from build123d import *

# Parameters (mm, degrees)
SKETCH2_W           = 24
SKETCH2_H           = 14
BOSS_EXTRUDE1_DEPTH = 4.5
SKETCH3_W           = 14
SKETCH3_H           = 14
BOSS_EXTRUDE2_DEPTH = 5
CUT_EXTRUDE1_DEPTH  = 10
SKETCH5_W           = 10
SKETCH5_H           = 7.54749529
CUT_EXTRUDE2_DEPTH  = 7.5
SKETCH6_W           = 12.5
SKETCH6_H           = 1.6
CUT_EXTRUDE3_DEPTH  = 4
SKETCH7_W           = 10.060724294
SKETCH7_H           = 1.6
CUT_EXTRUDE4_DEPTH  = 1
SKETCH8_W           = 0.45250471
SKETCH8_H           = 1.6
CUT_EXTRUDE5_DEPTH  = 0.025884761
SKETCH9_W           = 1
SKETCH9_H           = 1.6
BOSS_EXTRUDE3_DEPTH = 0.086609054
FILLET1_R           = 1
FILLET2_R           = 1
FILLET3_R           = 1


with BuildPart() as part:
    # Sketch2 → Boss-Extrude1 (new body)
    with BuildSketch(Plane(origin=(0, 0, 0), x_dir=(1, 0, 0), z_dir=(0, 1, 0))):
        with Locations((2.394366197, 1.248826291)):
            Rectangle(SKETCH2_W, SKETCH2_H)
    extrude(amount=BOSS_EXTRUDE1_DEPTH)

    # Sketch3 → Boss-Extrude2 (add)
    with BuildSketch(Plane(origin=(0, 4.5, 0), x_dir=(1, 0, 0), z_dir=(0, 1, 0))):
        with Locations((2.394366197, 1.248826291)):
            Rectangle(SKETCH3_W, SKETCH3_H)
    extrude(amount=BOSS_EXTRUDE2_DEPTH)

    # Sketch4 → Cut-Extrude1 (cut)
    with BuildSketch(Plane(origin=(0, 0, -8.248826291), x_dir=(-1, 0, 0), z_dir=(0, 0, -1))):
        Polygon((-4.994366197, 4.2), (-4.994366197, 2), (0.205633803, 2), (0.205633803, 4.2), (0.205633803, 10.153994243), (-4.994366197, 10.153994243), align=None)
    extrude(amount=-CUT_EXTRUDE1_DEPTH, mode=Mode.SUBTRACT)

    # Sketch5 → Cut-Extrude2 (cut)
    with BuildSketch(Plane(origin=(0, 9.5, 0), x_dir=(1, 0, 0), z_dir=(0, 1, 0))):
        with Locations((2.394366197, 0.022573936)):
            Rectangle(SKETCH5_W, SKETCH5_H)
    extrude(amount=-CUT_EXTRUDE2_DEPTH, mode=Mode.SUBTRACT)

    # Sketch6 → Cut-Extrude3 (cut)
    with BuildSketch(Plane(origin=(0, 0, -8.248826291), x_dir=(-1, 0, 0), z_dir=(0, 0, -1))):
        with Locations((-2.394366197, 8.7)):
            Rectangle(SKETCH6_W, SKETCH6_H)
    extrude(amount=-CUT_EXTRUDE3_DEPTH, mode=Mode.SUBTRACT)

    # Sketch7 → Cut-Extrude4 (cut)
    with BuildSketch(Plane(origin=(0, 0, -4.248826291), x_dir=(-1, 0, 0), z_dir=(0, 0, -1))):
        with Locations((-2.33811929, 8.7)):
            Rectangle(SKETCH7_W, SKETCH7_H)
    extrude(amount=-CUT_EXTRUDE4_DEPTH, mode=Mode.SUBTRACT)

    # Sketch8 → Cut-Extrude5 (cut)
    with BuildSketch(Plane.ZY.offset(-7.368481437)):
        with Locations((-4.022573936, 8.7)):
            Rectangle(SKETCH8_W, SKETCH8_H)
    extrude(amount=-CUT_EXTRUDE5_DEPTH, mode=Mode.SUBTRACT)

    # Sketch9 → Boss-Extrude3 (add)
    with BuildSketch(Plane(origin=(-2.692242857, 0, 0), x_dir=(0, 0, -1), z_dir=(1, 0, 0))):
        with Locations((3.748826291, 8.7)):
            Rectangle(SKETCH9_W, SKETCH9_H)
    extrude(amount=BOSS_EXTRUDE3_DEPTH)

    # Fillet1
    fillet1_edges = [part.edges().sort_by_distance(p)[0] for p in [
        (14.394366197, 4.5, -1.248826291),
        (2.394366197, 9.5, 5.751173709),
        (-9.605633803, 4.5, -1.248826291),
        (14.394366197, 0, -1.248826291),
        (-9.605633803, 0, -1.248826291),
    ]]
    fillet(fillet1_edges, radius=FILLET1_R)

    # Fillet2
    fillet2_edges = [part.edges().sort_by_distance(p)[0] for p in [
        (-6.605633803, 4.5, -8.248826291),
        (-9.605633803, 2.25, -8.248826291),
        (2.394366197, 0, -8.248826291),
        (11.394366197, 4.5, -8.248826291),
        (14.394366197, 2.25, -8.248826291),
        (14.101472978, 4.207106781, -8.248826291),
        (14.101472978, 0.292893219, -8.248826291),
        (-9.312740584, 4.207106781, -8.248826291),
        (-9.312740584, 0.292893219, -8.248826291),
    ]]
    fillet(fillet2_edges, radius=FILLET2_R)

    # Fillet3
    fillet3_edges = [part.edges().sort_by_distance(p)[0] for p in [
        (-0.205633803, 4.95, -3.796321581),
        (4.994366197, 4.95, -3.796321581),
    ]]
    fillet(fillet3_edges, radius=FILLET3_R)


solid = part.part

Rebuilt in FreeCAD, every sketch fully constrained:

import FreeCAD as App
import Part
import Sketcher
Q = App.Units.Quantity


def edges_at(feature, points):
    """Names of the edges that pass closest to the given points."""
    edges = feature.Shape.Edges
    near = lambda p: min(range(len(edges)), key=lambda i: edges[i].distToShape(Part.Vertex(*p))[0])
    return sorted({f"Edge{near(p) + 1}" for p in points})


def add_polygon(sketch, points):
    """Adds a closed chain of lines whose ends are joined by coincident constraints."""
    first, n = sketch.GeometryCount, len(points)
    for a, b in zip(points, points[1:] + points[:1]):
        sketch.addGeometry(Part.LineSegment(App.Vector(*a, 0), App.Vector(*b, 0)), False)
    for i in range(n):
        sketch.addConstraint(Sketcher.Constraint("Coincident", first + i, 2, first + (i + 1) % n, 1))

doc = App.newDocument("Part")
body = doc.addObject("PartDesign::Body", "Body")

# Sketch on XZ plane
sketch1 = doc.addObject("Sketcher::SketchObject", "Sketch")
body.addObject(sketch1)
sketch1.AttachmentSupport = (doc.XZ_Plane, [""])
sketch1.MapMode = "FlatFace"
add_polygon(sketch1, [(-10, -8), (-10, 6), (14, 6), (14, -8)])  # lines 0-3
sketch1.addConstraint(Sketcher.Constraint("Vertical", 0))
sketch1.addConstraint(Sketcher.Constraint("Horizontal", 1))
sketch1.addConstraint(Sketcher.Constraint("Vertical", 2))
sketch1.addConstraint(Sketcher.Constraint("Horizontal", 3))
sketch1.addConstraint(Sketcher.Constraint("DistanceX", 1, 1, 1, 2, Q("24 mm")))
sketch1.addConstraint(Sketcher.Constraint("DistanceY", 0, 1, 0, 2, Q("14 mm")))
sketch1.addConstraint(Sketcher.Constraint("DistanceX", 0, 2, -1, 1, Q("9.605634 mm")))
sketch1.addConstraint(Sketcher.Constraint("DistanceY", -1, 1, 0, 2, Q("5.751174 mm")))
pad1 = doc.addObject("PartDesign::Pad", "Pad")
body.addObject(pad1)
pad1.Profile = sketch1
pad1.Length = 4.5
pad1.Reversed = True

# Sketch on XZ plane
sketch2 = doc.addObject("Sketcher::SketchObject", "Sketch001")
body.addObject(sketch2)
sketch2.AttachmentSupport = (doc.XZ_Plane, [""])
sketch2.MapMode = "FlatFace"
sketch2.AttachmentOffset = App.Placement(App.Vector(0, 0, -4.5), App.Rotation())
add_polygon(sketch2, [(-5, -8), (-5, 6), (9, 6), (9, -8)])  # lines 0-3
sketch2.addConstraint(Sketcher.Constraint("Vertical", 0))
sketch2.addConstraint(Sketcher.Constraint("Horizontal", 1))
sketch2.addConstraint(Sketcher.Constraint("Vertical", 2))
sketch2.addConstraint(Sketcher.Constraint("Horizontal", 3))
sketch2.addConstraint(Sketcher.Constraint("Equal", 3, 0))
sketch2.addConstraint(Sketcher.Constraint("DistanceX", 1, 1, 1, 2, Q("14 mm")))
sketch2.addConstraint(Sketcher.Constraint("DistanceX", 0, 2, -1, 1, Q("4.605634 mm")))
sketch2.addConstraint(Sketcher.Constraint("DistanceY", -1, 1, 0, 2, Q("5.751174 mm")))
pad2 = doc.addObject("PartDesign::Pad", "Pad001")
body.addObject(pad2)
pad2.Profile = sketch2
pad2.Length = 5
pad2.Reversed = True

# Sketch on XY plane
sketch3 = doc.addObject("Sketcher::SketchObject", "Sketch002")
body.addObject(sketch3)
sketch3.AttachmentSupport = (doc.XY_Plane, [""])
sketch3.MapMode = "FlatFace"
sketch3.AttachmentOffset = App.Placement(App.Vector(0, 0, -8.248826), App.Rotation())
add_polygon(sketch3, [(5, 2), (0, 2), (0, 10), (5, 10)])  # lines 0-3
sketch3.addConstraint(Sketcher.Constraint("Horizontal", 0))
sketch3.addConstraint(Sketcher.Constraint("Vertical", 1))
sketch3.addConstraint(Sketcher.Constraint("Horizontal", 2))
sketch3.addConstraint(Sketcher.Constraint("Vertical", 3))
sketch3.addConstraint(Sketcher.Constraint("DistanceX", 0, 2, 0, 1, Q("5.2 mm")))
sketch3.addConstraint(Sketcher.Constraint("DistanceY", -1, 1, 0, 2, Q("2 mm")))
sketch3.addConstraint(Sketcher.Constraint("DistanceY", 1, 1, 1, 2, Q("8.153994 mm")))
sketch3.addConstraint(Sketcher.Constraint("DistanceX", 0, 2, -1, 1, Q("0.205634 mm")))
pocket1 = doc.addObject("PartDesign::Pocket", "Pocket")
body.addObject(pocket1)
pocket1.Profile = sketch3
pocket1.Length = 10
pocket1.Reversed = True

# Sketch on XZ plane
sketch4 = doc.addObject("Sketcher::SketchObject", "Sketch003")
body.addObject(sketch4)
sketch4.AttachmentSupport = (doc.XZ_Plane, [""])
sketch4.MapMode = "FlatFace"
sketch4.AttachmentOffset = App.Placement(App.Vector(0, 0, -9.5), App.Rotation())
add_polygon(sketch4, [(-3, -4), (-3, 4), (7, 4), (7, -4)])  # lines 0-3
sketch4.addConstraint(Sketcher.Constraint("Vertical", 0))
sketch4.addConstraint(Sketcher.Constraint("Horizontal", 1))
sketch4.addConstraint(Sketcher.Constraint("Vertical", 2))
sketch4.addConstraint(Sketcher.Constraint("Horizontal", 3))
sketch4.addConstraint(Sketcher.Constraint("DistanceX", 1, 1, 1, 2, Q("10 mm")))
sketch4.addConstraint(Sketcher.Constraint("DistanceY", 0, 1, 0, 2, Q("7.547495 mm")))
sketch4.addConstraint(Sketcher.Constraint("DistanceY", 2, 2, -1, 1, Q("3.796322 mm")))
sketch4.addConstraint(Sketcher.Constraint("DistanceX", 0, 2, -1, 1, Q("2.605634 mm")))
pocket2 = doc.addObject("PartDesign::Pocket", "Pocket001")
body.addObject(pocket2)
pocket2.Profile = sketch4
pocket2.Length = 7.5
pocket2.Reversed = True

# Sketch on XY plane
sketch5 = doc.addObject("Sketcher::SketchObject", "Sketch004")
body.addObject(sketch5)
sketch5.AttachmentSupport = (doc.XY_Plane, [""])
sketch5.MapMode = "FlatFace"
sketch5.AttachmentOffset = App.Placement(App.Vector(0, 0, -8.248826), App.Rotation())
add_polygon(sketch5, [(8.6, 9.5), (8.6, 7.9), (-3.9, 7.9), (-3.9, 9.5)])  # lines 0-3
sketch5.addConstraint(Sketcher.Constraint("Vertical", 0))
sketch5.addConstraint(Sketcher.Constraint("Horizontal", 1))
sketch5.addConstraint(Sketcher.Constraint("Vertical", 2))
sketch5.addConstraint(Sketcher.Constraint("Horizontal", 3))
sketch5.addConstraint(Sketcher.Constraint("DistanceX", 1, 2, 1, 1, Q("12.5 mm")))
sketch5.addConstraint(Sketcher.Constraint("DistanceY", 0, 2, 0, 1, Q("1.6 mm")))
sketch5.addConstraint(Sketcher.Constraint("DistanceY", -1, 1, 0, 2, Q("7.9 mm")))
sketch5.addConstraint(Sketcher.Constraint("DistanceX", -1, 1, 0, 2, Q("8.644366 mm")))
pocket3 = doc.addObject("PartDesign::Pocket", "Pocket002")
body.addObject(pocket3)
pocket3.Profile = sketch5
pocket3.Length = 4
pocket3.Reversed = True

# Sketch on XY plane
sketch6 = doc.addObject("Sketcher::SketchObject", "Sketch005")
body.addObject(sketch6)
sketch6.AttachmentSupport = (doc.XY_Plane, [""])
sketch6.MapMode = "FlatFace"
sketch6.AttachmentOffset = App.Placement(App.Vector(0, 0, -4.248826), App.Rotation())
add_polygon(sketch6, [(7.4, 9.5), (7.4, 7.9), (-2.7, 7.9), (-2.7, 9.5)])  # lines 0-3
sketch6.addConstraint(Sketcher.Constraint("Vertical", 0))
sketch6.addConstraint(Sketcher.Constraint("Horizontal", 1))
sketch6.addConstraint(Sketcher.Constraint("Vertical", 2))
sketch6.addConstraint(Sketcher.Constraint("Horizontal", 3))
sketch6.addConstraint(Sketcher.Constraint("DistanceY", 0, 2, 0, 1, Q("1.6 mm")))
sketch6.addConstraint(Sketcher.Constraint("DistanceY", -1, 1, 0, 2, Q("7.9 mm")))
sketch6.addConstraint(Sketcher.Constraint("DistanceX", 1, 2, 1, 1, Q("10.060724 mm")))
sketch6.addConstraint(Sketcher.Constraint("DistanceX", -1, 1, 0, 2, Q("7.368481 mm")))
pocket4 = doc.addObject("PartDesign::Pocket", "Pocket003")
body.addObject(pocket4)
pocket4.Profile = sketch6
pocket4.Length = 1
pocket4.Reversed = True

# Sketch on YZ plane
sketch7 = doc.addObject("Sketcher::SketchObject", "Sketch006")
body.addObject(sketch7)
sketch7.AttachmentSupport = (doc.YZ_Plane, [""])
sketch7.MapMode = "FlatFace"
sketch7.AttachmentOffset = App.Placement(App.Vector(0, 0, 7.368481), App.Rotation())
add_polygon(sketch7, [(9.5, -4.25), (7.9, -4.25), (7.9, -3.8), (9.5, -3.8)])  # lines 0-3
sketch7.addConstraint(Sketcher.Constraint("Horizontal", 0))
sketch7.addConstraint(Sketcher.Constraint("Vertical", 1))
sketch7.addConstraint(Sketcher.Constraint("Horizontal", 2))
sketch7.addConstraint(Sketcher.Constraint("Vertical", 3))
sketch7.addConstraint(Sketcher.Constraint("DistanceX", 0, 2, 0, 1, Q("1.6 mm")))
sketch7.addConstraint(Sketcher.Constraint("DistanceX", -1, 1, 0, 2, Q("7.9 mm")))
sketch7.addConstraint(Sketcher.Constraint("DistanceY", 1, 1, 1, 2, Q("0.452505 mm")))
sketch7.addConstraint(Sketcher.Constraint("DistanceY", 1, 2, -1, 1, Q("3.796322 mm")))
pocket5 = doc.addObject("PartDesign::Pocket", "Pocket004")
body.addObject(pocket5)
pocket5.Profile = sketch7
pocket5.Length = 0.025885
pocket5.Reversed = True

# Sketch on YZ plane
sketch8 = doc.addObject("Sketcher::SketchObject", "Sketch007")
body.addObject(sketch8)
sketch8.AttachmentSupport = (doc.YZ_Plane, [""])
sketch8.MapMode = "FlatFace"
sketch8.AttachmentOffset = App.Placement(App.Vector(0, 0, -2.692243), App.Rotation())
add_polygon(sketch8, [(9.5, -3.2), (7.9, -3.2), (7.9, -4.2), (9.5, -4.2)])  # lines 0-3
sketch8.addConstraint(Sketcher.Constraint("Horizontal", 0))
sketch8.addConstraint(Sketcher.Constraint("Vertical", 1))
sketch8.addConstraint(Sketcher.Constraint("Horizontal", 2))
sketch8.addConstraint(Sketcher.Constraint("Vertical", 3))
sketch8.addConstraint(Sketcher.Constraint("DistanceY", 1, 2, 1, 1, Q("1 mm")))
sketch8.addConstraint(Sketcher.Constraint("DistanceX", 0, 2, 0, 1, Q("1.6 mm")))
sketch8.addConstraint(Sketcher.Constraint("DistanceX", -1, 1, 0, 2, Q("7.9 mm")))
sketch8.addConstraint(Sketcher.Constraint("DistanceY", 0, 2, -1, 1, Q("3.248826 mm")))
pad3 = doc.addObject("PartDesign::Pad", "Pad002")
body.addObject(pad3)
pad3.Profile = sketch8
pad3.Length = 0.086609
doc.recompute()

fillet = doc.addObject("PartDesign::Fillet", "Fillet")
body.addObject(fillet)
fillet.Base = (pad3, edges_at(pad3, [
    (14.394, 4.5, -1.249),
    (2.394, 9.5, 5.751),
    (-9.606, 4.5, -1.249),
    (14.394, 0, -1.249),
    (-9.606, 0, -1.249),
]))
fillet.Radius = 1
doc.recompute()

fillet2 = doc.addObject("PartDesign::Fillet", "Fillet001")
body.addObject(fillet2)
fillet2.Base = (fillet, edges_at(fillet, [
    (-6.606, 4.5, -8.249),
    (-9.606, 2.25, -8.249),
    (2.394, 0, -8.249),
    (11.394, 4.5, -8.249),
    (14.394, 2.25, -8.249),
    (14.101, 4.207, -8.249),
    (14.101, 0.293, -8.249),
    (-9.313, 4.207, -8.249),
    (-9.313, 0.293, -8.249),
]))
fillet2.Radius = 1
doc.recompute()

fillet3 = doc.addObject("PartDesign::Fillet", "Fillet002")
body.addObject(fillet3)
fillet3.Base = (fillet2, edges_at(fillet2, [(-0.206, 4.95, -3.796), (4.994, 4.95, -3.796)]))
fillet3.Radius = 1

doc.recompute()
